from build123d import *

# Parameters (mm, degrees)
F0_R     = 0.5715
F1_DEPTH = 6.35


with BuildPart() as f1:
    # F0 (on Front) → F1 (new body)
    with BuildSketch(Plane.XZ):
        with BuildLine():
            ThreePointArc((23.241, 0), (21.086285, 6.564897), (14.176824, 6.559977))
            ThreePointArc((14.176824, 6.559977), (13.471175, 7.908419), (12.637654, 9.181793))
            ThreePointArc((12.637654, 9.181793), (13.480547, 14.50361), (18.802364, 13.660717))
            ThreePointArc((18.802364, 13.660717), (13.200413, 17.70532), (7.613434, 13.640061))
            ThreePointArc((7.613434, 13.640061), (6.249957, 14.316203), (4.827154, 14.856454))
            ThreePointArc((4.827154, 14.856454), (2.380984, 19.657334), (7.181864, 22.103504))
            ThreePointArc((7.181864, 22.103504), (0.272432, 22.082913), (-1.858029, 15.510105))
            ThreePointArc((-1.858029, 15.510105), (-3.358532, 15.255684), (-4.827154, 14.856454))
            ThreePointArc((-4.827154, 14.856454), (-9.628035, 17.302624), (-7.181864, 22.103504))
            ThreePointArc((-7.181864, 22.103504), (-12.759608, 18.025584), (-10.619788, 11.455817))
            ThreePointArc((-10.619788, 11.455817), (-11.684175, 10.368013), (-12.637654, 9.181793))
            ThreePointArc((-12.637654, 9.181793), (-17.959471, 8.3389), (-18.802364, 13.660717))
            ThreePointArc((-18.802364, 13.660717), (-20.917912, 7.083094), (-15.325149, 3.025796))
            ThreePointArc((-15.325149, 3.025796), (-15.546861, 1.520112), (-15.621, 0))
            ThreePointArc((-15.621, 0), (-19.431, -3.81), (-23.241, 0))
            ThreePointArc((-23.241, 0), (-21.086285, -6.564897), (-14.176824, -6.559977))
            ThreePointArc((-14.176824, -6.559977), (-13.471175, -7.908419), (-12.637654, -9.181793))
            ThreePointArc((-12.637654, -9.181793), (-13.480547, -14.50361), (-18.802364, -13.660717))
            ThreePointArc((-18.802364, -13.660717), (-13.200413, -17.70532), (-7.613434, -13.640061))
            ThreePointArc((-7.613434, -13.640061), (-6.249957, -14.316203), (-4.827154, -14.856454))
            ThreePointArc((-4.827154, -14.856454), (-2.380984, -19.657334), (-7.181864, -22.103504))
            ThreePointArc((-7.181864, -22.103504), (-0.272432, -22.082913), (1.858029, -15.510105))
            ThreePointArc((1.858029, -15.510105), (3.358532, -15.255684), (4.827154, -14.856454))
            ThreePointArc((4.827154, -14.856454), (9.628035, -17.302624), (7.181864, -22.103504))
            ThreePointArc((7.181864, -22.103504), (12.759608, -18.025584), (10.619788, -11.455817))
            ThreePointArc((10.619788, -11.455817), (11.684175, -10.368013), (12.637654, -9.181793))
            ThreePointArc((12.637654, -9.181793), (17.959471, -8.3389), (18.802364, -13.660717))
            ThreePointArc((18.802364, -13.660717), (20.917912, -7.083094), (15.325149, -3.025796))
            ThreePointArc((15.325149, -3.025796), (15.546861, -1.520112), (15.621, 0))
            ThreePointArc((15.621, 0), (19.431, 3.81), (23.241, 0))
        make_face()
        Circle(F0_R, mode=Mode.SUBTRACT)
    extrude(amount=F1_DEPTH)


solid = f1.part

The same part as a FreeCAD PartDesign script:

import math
import FreeCAD as App
import Part
import Sketcher

V = App.Vector
Q = App.Units.Quantity

doc = App.newDocument("Part")
params = doc.addObject("Spreadsheet::Sheet", "Params")
for row, (alias, value) in enumerate([
    ("sketch1_radius", "0.15 in"),
    ("sketch1_radius2", "0.15 in"),
    ("sketch1_radius3", "0.15 in"),
    ("sketch1_radius4", "0.15 in"),
    ("sketch1_radius5", "0.15 in"),
    ("pad1_length", "0.25 in"),
], start=1):
    params.set(f"A{row}", alias)
    params.set(f"B{row}", "=" + value)
    params.setAlias(f"B{row}", alias)

body = doc.addObject("PartDesign::Body", "Body")

# Sketch on XZ plane
sketch1 = doc.addObject("Sketcher::SketchObject", "Sketch")
body.addObject(sketch1)
sketch1.AttachmentSupport = (doc.XZ_Plane, [""])
sketch1.MapMode = "FlatFace"
sketch1.addGeometry([
    Part.ArcOfCircle(Part.Circle(V(17.634948, 1.796051, 0), V(0, 0, 1), 5.886732), math.radians(-17.764275), math.radians(125.975825)),  # 0
    Part.ArcOfCircle(Part.Circle(V(0.000105, 0.000059, 0), V(0, 0, 1), 15.62088), math.radians(24.831147), math.radians(36.000052)),  # 1
    Part.ArcOfCircle(Part.Circle(V(15.720009, 11.421255, 0), V(0, 0, 1), 3.81), math.radians(36), math.radians(216)),  # 2
    Part.ArcOfCircle(Part.Circle(V(13.211281, 11.818598, 0), V(0, 0, 1), 5.886732), math.radians(18.235731), math.radians(161.975817)),  # 3
    Part.ArcOfCircle(Part.Circle(V(-0.000028, -0.000065, 0), V(0, 0, 1), 15.62107), math.radians(60.831205), math.radians(71.999977)),  # 4
    Part.ArcOfCircle(Part.Circle(V(6.004509, 18.479979, 0), V(0, 0, 1), 3.81), math.radians(71.999995), math.radians(251.999995)),  # 5
    Part.ArcOfCircle(Part.Circle(V(3.741352, 17.326843, 0), V(0, 0, 1), 5.886732), math.radians(54.23572), math.radians(197.975829)),  # 6
    Part.ArcOfCircle(Part.Circle(V(0.000003, -0.000024, 0), V(0, 0, 1), 15.621024), math.radians(96.831181), math.radians(107.999982)),  # 7
    Part.ArcOfCircle(Part.Circle(V(-6.00451, 18.479979, 0), V(0, 0, 1), 3.81), math.radians(107.999991), math.radians(288.000019)),  # 8
    Part.ArcOfCircle(Part.Circle(V(-7.157645, 16.216822, 0), V(0, 0, 1), 5.886731), math.radians(90.235724), math.radians(233.975827)),  # 9
    Part.ArcOfCircle(Part.Circle(V(-0.000039, 0.000039, 0), V(0, 0, 1), 15.620945), math.radians(132.83117), math.radians(144.000031)),  # 10
    Part.ArcOfCircle(Part.Circle(V(-15.720009, 11.421255, 0), V(0, 0, 1), 3.81), math.radians(144), math.radians(324)),  # 11
    Part.ArcOfCircle(Part.Circle(V(-15.322665, 8.912527, 0), V(0, 0, 1), 5.886732), math.radians(126.235728), math.radians(269.975828)),  # 12
    Part.ArcOfCircle(Part.Circle(V(0.000065, -0.000008, 0), V(0, 0, 1), 15.621065), math.radians(168.831196), math.radians(179.999972)),  # 13
    Part.ArcOfCircle(Part.Circle(V(-19.431, 0, 0), V(0, 0, 1), 3.81), math.radians(180), math.radians(360)),  # 14
    Part.ArcOfCircle(Part.Circle(V(-17.634948, -1.796051, 0), V(0, 0, 1), 5.886732), math.radians(162.235725), math.radians(305.975825)),  # 15
    Part.ArcOfCircle(Part.Circle(V(-0.000105, -0.000059, 0), V(0, 0, 1), 15.62088), math.radians(-155.168853), math.radians(-143.999948)),  # 16
    Part.ArcOfCircle(Part.Circle(V(-15.720009, -11.421255, 0), V(0, 0, 1), 3.81), math.radians(-144), math.radians(36)),  # 17
    Part.ArcOfCircle(Part.Circle(V(-13.211281, -11.818598, 0), V(0, 0, 1), 5.886732), math.radians(-161.764269), math.radians(-18.024183)),  # 18
    Part.ArcOfCircle(Part.Circle(V(0.000028, 0.000065, 0), V(0, 0, 1), 15.62107), math.radians(-119.168795), math.radians(-108.000023)),  # 19
    Part.ArcOfCircle(Part.Circle(V(-6.004509, -18.479979, 0), V(0, 0, 1), 3.81), math.radians(-108.000005), math.radians(71.999995)),  # 20
    Part.ArcOfCircle(Part.Circle(V(-3.741352, -17.326843, 0), V(0, 0, 1), 5.886732), math.radians(-125.76428), math.radians(17.975829)),  # 21
    Part.ArcOfCircle(Part.Circle(V(-0.000003, 0.000024, 0), V(0, 0, 1), 15.621024), math.radians(-83.168819), math.radians(-72.000018)),  # 22
    Part.ArcOfCircle(Part.Circle(V(6.00451, -18.479979, 0), V(0, 0, 1), 3.81), math.radians(-72.000009), math.radians(108.000019)),  # 23
    Part.ArcOfCircle(Part.Circle(V(7.157645, -16.216822, 0), V(0, 0, 1), 5.886731), math.radians(-89.764276), math.radians(53.975827)),  # 24
    Part.ArcOfCircle(Part.Circle(V(0.000039, -0.000039, 0), V(0, 0, 1), 15.620945), math.radians(-47.16883), math.radians(-35.999969)),  # 25
    Part.ArcOfCircle(Part.Circle(V(15.720009, -11.421255, 0), V(0, 0, 1), 3.81), math.radians(-36), math.radians(144)),  # 26
    Part.ArcOfCircle(Part.Circle(V(15.322665, -8.912527, 0), V(0, 0, 1), 5.886732), math.radians(-53.764272), math.radians(89.975828)),  # 27
    Part.ArcOfCircle(Part.Circle(V(-0.000065, 0.000008, 0), V(0, 0, 1), 15.621065), math.radians(-11.168804), math.radians(-0.000028)),  # 28
    Part.ArcOfCircle(Part.Circle(V(19.431, 0, 0), V(0, 0, 1), 3.81), math.radians(0), math.radians(180)),  # 29
    Part.Circle(V(0, 0, 0), V(0, 0, 1), 0.5715),  # 30
], False)
sketch1.addConstraint([
    Sketcher.Constraint("Coincident", 0, 2, 1, 1),
    Sketcher.Constraint("Coincident", 1, 2, 2, 2),
    Sketcher.Constraint("Coincident", 2, 1, 3, 1),
    Sketcher.Constraint("Coincident", 3, 2, 4, 1),
    Sketcher.Constraint("Coincident", 4, 2, 5, 2),
    Sketcher.Constraint("Coincident", 5, 1, 6, 1),
    Sketcher.Constraint("Coincident", 6, 2, 7, 1),
    Sketcher.Constraint("Coincident", 7, 2, 8, 2),
    Sketcher.Constraint("Coincident", 8, 1, 9, 1),
    Sketcher.Constraint("Coincident", 9, 2, 10, 1),
    Sketcher.Constraint("Coincident", 10, 2, 11, 2),
    Sketcher.Constraint("Coincident", 11, 1, 12, 1),
    Sketcher.Constraint("Coincident", 12, 2, 13, 1),
    Sketcher.Constraint("Coincident", 13, 2, 14, 2),
    Sketcher.Constraint("Coincident", 14, 1, 15, 1),
    Sketcher.Constraint("Coincident", 15, 2, 16, 1),
    Sketcher.Constraint("Coincident", 16, 2, 17, 2),
    Sketcher.Constraint("Coincident", 17, 1, 18, 1),
    Sketcher.Constraint("Coincident", 18, 2, 19, 1),
    Sketcher.Constraint("Coincident", 19, 2, 20, 2),
    Sketcher.Constraint("Coincident", 20, 1, 21, 1),
    Sketcher.Constraint("Coincident", 21, 2, 22, 1),
    Sketcher.Constraint("Coincident", 22, 2, 23, 2),
    Sketcher.Constraint("Coincident", 23, 1, 24, 1),
    Sketcher.Constraint("Coincident", 24, 2, 25, 1),
    Sketcher.Constraint("Coincident", 25, 2, 26, 2),
    Sketcher.Constraint("Coincident", 26, 1, 27, 1),
    Sketcher.Constraint("Coincident", 27, 2, 28, 1),
    Sketcher.Constraint("Coincident", 28, 2, 29, 2),
    Sketcher.Constraint("Coincident", 29, 1, 0, 1),
    Sketcher.Constraint("Coincident", 30, 3, -1, 1),
    Sketcher.Constraint("PointOnObject", 14, 3, -1),
    Sketcher.Constraint("PointOnObject", 29, 3, -1),
    Sketcher.Constraint("PointOnObject", 13, 2, -1),
    Sketcher.Constraint("PointOnObject", 14, 1, -1),
    Sketcher.Constraint("PointOnObject", 28, 2, -1),
    Sketcher.Constraint("PointOnObject", 29, 1, -1),
    Sketcher.Constraint("Radius", 2, Q("0.15 in")),
    Sketcher.Constraint("Radius", 5, Q("0.15 in")),
    Sketcher.Constraint("Radius", 8, Q("0.15 in")),
    Sketcher.Constraint("Radius", 11, Q("0.15 in")),
    Sketcher.Constraint("Radius", 14, Q("0.15 in")),
    Sketcher.Constraint("Radius", 17, Q("0.15 in")),
    Sketcher.Constraint("Radius", 20, Q("0.15 in")),
    Sketcher.Constraint("Radius", 23, Q("0.15 in")),
    Sketcher.Constraint("Radius", 26, Q("0.15 in")),
    Sketcher.Constraint("Radius", 29, Q("0.15 in")),
    Sketcher.Constraint("Diameter", 30, Q("0.045 in")),
    Sketcher.Constraint("DistanceX", 14, 3, -1, 1, Q("0.765 in")),
    Sketcher.Constraint("DistanceX", -1, 1, 29, 3, Q("0.765 in")),
    Sketcher.Constraint("Radius", 0, 5.886732),
    Sketcher.Constraint("Radius", 1, 15.62088),
    Sketcher.Constraint("Radius", 4, 15.62107),
    Sketcher.Constraint("Radius", 6, 5.886732),
    Sketcher.Constraint("Radius", 9, 5.886731),
    Sketcher.Constraint("Radius", 12, 5.886732),
    Sketcher.Constraint("Radius", 15, 5.886732),
    Sketcher.Constraint("Radius", 16, 15.62088),
    Sketcher.Constraint("Radius", 19, 15.62107),
    Sketcher.Constraint("Radius", 21, 5.886732),
    Sketcher.Constraint("Radius", 24, 5.886731),
    Sketcher.Constraint("Radius", 27, 5.886732),
    Sketcher.Constraint("Radius", 3, 5.886732),
    Sketcher.Constraint("Radius", 7, 15.621024),
    Sketcher.Constraint("Radius", 10, 15.620945),
    Sketcher.Constraint("Radius", 13, 15.621065),
    Sketcher.Constraint("Radius", 18, 5.886732),
    Sketcher.Constraint("Radius", 22, 15.621024),
    Sketcher.Constraint("Radius", 25, 15.620945),
    Sketcher.Constraint("Radius", 28, 15.621065),
    Sketcher.Constraint("DistanceX", -1, 1, 0, 3, 17.634948),
    Sketcher.Constraint("DistanceX", -1, 1, 2, 3, 15.720009),
    Sketcher.Constraint("DistanceX", -1, 1, 3, 3, 13.211281),
    Sketcher.Constraint("DistanceX", -1, 1, 5, 3, 6.004509),
    Sketcher.Constraint("DistanceY", -1, 1, 5, 3, 18.479979),
    Sketcher.Constraint("DistanceX", 8, 3, -1, 1, 6.00451),
    Sketcher.Constraint("DistanceY", -1, 1, 8, 3, 18.479979),
    Sketcher.Constraint("DistanceX", 11, 3, -1, 1, 15.720009),
    Sketcher.Constraint("DistanceX", 15, 3, -1, 1, 17.634948),
    Sketcher.Constraint("DistanceX", 17, 3, -1, 1, 15.720009),
    Sketcher.Constraint("DistanceX", 18, 3, -1, 1, 13.211281),
    Sketcher.Constraint("DistanceX", 20, 3, -1, 1, 6.004509),
    Sketcher.Constraint("DistanceY", 20, 3, -1, 1, 18.479979),
    Sketcher.Constraint("DistanceX", -1, 1, 23, 3, 6.00451),
    Sketcher.Constraint("DistanceY", 23, 3, -1, 1, 18.479979),
    Sketcher.Constraint("DistanceX", -1, 1, 26, 3, 15.720009),
    Sketcher.Constraint("DistanceY", -1, 1, 3, 2, 13.640061),
    Sketcher.Constraint("DistanceX", 6, 2, -1, 1, 1.858029),
    Sketcher.Constraint("DistanceX", 9, 2, -1, 1, 10.619788),
    Sketcher.Constraint("DistanceX", 12, 2, -1, 1, 15.325149),
    Sketcher.Constraint("DistanceY", 18, 2, -1, 1, 13.640061),
    Sketcher.Constraint("DistanceX", -1, 1, 21, 2, 1.858029),
    Sketcher.Constraint("DistanceX", -1, 1, 24, 2, 10.619788),
    Sketcher.Constraint("DistanceX", -1, 1, 27, 2, 15.325149),
    Sketcher.Constraint("DistanceX", -1, 1, 1, 3, 0.000105),
    Sketcher.Constraint("DistanceY", -1, 1, 2, 3, 11.421255),
    Sketcher.Constraint("DistanceY", -1, 1, 3, 3, 11.818598),
    Sketcher.Constraint("DistanceX", -1, 1, 6, 3, 3.741352),
    Sketcher.Constraint("DistanceY", -1, 1, 6, 3, 17.326843),
    Sketcher.Constraint("DistanceX", 9, 3, -1, 1, 7.157645),
    Sketcher.Constraint("DistanceY", -1, 1, 9, 3, 16.216822),
    Sketcher.Constraint("DistanceY", -1, 1, 11, 3, 11.421255),
    Sketcher.Constraint("DistanceX", 12, 3, -1, 1, 15.322665),
    Sketcher.Constraint("DistanceY", -1, 1, 12, 3, 8.912527),
    Sketcher.Constraint("DistanceX", 16, 3, -1, 1, 0.000105),
    Sketcher.Constraint("DistanceY", 17, 3, -1, 1, 11.421255),
    Sketcher.Constraint("DistanceY", 18, 3, -1, 1, 11.818598),
    Sketcher.Constraint("DistanceX", 21, 3, -1, 1, 3.741352),
    Sketcher.Constraint("DistanceY", 21, 3, -1, 1, 17.326843),
    Sketcher.Constraint("DistanceX", -1, 1, 24, 3, 7.157645),
    Sketcher.Constraint("DistanceY", 24, 3, -1, 1, 16.216822),
    Sketcher.Constraint("DistanceY", 26, 3, -1, 1, 11.421255),
    Sketcher.Constraint("DistanceX", -1, 1, 27, 3, 15.322665),
    Sketcher.Constraint("DistanceY", 27, 3, -1, 1, 8.912527),
    Sketcher.Constraint("DistanceX", -1, 1, 1, 2, 12.637654),
    Sketcher.Constraint("DistanceX", -1, 1, 4, 2, 4.827154),
    Sketcher.Constraint("DistanceX", 7, 2, -1, 1, 4.827154),
    Sketcher.Constraint("DistanceX", 10, 2, -1, 1, 12.637654),
    Sketcher.Constraint("DistanceX", 16, 2, -1, 1, 12.637654),
    Sketcher.Constraint("DistanceX", 19, 2, -1, 1, 4.827154),
    Sketcher.Constraint("DistanceX", -1, 1, 22, 2, 4.827154),
    Sketcher.Constraint("DistanceX", -1, 1, 25, 2, 12.637654),
])
sketch1.setExpression("Constraints[37]", "Params.sketch1_radius")
sketch1.setExpression("Constraints[38]", "Params.sketch1_radius2")
sketch1.setExpression("Constraints[39]", "Params.sketch1_radius3")
sketch1.setExpression("Constraints[40]", "Params.sketch1_radius4")
sketch1.setExpression("Constraints[41]", "Params.sketch1_radius5")
pad1 = doc.addObject("PartDesign::Pad", "Pad")
body.addObject(pad1)
pad1.Profile = sketch1
pad1.setExpression("Length", "Params.pad1_length")

doc.recompute()
